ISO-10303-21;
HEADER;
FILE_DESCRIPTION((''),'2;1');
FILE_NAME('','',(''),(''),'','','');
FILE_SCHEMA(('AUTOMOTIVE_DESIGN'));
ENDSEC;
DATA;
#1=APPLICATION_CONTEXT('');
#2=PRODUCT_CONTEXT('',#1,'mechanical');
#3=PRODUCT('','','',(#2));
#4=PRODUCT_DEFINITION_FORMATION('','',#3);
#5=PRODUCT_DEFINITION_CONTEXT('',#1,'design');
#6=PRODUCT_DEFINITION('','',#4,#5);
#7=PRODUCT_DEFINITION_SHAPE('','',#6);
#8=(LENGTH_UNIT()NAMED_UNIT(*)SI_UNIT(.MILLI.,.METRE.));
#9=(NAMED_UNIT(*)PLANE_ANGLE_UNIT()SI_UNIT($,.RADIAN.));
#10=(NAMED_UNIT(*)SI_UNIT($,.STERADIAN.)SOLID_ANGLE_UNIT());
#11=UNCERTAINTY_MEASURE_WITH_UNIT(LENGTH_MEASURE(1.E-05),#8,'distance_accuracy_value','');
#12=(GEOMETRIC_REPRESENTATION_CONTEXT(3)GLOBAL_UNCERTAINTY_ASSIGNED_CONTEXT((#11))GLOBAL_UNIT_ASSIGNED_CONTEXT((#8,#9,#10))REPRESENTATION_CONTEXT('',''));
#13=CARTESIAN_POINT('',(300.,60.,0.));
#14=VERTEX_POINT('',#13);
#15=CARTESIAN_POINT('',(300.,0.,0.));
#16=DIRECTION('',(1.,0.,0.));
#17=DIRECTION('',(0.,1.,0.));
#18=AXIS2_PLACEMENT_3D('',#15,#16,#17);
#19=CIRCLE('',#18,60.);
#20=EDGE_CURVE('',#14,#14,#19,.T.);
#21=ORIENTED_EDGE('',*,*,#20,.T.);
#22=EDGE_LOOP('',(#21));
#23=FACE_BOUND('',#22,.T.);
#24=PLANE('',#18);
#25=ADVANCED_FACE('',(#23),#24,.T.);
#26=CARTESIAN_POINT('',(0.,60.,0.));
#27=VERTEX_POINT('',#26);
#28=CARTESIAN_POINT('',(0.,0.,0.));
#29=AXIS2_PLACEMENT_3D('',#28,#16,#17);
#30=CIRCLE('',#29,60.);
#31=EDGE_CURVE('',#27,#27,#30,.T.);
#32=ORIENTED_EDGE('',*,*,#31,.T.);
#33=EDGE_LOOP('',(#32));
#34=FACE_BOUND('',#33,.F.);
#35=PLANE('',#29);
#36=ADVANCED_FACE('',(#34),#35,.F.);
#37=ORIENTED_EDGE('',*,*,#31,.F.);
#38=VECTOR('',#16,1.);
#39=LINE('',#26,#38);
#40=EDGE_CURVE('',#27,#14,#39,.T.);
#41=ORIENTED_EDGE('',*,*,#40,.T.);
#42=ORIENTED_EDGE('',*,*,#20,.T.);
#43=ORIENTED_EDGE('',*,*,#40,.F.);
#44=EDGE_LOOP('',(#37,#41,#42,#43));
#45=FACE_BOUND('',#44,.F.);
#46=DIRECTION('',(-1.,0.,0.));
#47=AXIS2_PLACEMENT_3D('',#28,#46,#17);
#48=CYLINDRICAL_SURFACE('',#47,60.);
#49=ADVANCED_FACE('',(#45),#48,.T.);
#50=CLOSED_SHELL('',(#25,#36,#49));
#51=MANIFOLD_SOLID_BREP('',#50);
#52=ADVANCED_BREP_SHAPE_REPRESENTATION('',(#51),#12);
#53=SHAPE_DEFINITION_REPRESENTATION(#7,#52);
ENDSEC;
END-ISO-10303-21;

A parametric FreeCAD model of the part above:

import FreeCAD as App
import Part
import Sketcher
from FreeCAD import Vector

doc = App.newDocument("Part")
body = doc.addObject("PartDesign::Body", "Body")

# Sketch on YZ plane
sketch1 = body.newObject("Sketcher::SketchObject", "Sketch")
sketch1.AttachmentSupport = (doc.getObject("YZ_Plane"), [""])
sketch1.MapMode = "FlatFace"
sketch1.addGeometry(Part.Circle(Vector(0, 0, 0), Vector(0, 0, 1), 60), False)
sketch1.addConstraint([
    Sketcher.Constraint("Coincident", 0, 3, -1, 1),
    Sketcher.Constraint("Diameter", 0, 120.0),
])
pad1 = body.newObject("PartDesign::Pad", "Pad")
pad1.Profile = sketch1
pad1.Length = 300

doc.recompute()
